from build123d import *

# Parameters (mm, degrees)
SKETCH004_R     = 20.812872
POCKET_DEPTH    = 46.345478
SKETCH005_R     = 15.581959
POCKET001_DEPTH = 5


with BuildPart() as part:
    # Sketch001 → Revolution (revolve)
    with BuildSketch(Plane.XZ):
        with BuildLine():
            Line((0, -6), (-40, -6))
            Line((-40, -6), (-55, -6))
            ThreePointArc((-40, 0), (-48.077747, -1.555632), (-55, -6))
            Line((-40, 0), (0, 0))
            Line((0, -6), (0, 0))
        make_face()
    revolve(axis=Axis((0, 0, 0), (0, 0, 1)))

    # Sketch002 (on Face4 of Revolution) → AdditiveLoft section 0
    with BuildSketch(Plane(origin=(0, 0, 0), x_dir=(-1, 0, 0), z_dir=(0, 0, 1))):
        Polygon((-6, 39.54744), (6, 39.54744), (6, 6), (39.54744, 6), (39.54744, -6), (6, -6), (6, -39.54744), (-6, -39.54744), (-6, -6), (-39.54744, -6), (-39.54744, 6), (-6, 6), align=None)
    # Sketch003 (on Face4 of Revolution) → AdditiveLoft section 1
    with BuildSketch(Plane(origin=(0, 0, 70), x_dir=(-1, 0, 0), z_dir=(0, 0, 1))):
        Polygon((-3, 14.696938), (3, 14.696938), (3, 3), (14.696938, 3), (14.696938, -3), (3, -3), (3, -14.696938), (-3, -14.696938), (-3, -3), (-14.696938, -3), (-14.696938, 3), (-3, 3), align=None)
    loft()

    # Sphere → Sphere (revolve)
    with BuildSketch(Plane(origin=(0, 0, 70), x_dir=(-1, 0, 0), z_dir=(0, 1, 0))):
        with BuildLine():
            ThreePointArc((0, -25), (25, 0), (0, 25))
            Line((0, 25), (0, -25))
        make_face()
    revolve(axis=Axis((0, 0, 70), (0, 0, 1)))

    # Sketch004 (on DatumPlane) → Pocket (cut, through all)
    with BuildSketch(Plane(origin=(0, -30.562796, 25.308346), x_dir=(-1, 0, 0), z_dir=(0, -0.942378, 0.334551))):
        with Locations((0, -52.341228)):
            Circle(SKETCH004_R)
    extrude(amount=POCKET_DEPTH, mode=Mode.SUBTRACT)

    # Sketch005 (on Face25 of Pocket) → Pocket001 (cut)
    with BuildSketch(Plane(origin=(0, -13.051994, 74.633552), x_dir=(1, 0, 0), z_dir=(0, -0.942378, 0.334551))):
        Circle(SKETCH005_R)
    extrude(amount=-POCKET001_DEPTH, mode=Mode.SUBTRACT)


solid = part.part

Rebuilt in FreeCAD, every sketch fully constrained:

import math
import FreeCAD as App
import Part
import Sketcher

V = App.Vector
Q = App.Units.Quantity


def add_polygon(sketch, points):
    """Adds a closed chain of lines whose ends are joined by coincident constraints."""
    first, n = sketch.GeometryCount, len(points)
    for a, b in zip(points, points[1:] + points[:1]):
        sketch.addGeometry(Part.LineSegment(App.Vector(*a, 0), App.Vector(*b, 0)), False)
    for i in range(n):
        sketch.addConstraint(Sketcher.Constraint("Coincident", first + i, 2, first + (i + 1) % n, 1))

doc = App.newDocument("Part")
params = doc.addObject("Spreadsheet::Sheet", "Params")
for row, (alias, value) in enumerate([
    ("sketch1_width", "55 mm"),
    ("sketch1_width2", "40 mm"),
    ("sketch1_height", "6 mm"),
    ("revolution_angle", "360 deg"),
    ("sketch2_width", "12 mm"),
    ("sketch3_width", "6 mm"),
    ("sketch4_radius", "25 mm"),
    ("revolution2_angle", "360 deg"),
    ("pocket2_length", "5 mm"),
], start=1):
    params.set(f"A{row}", alias)
    params.set(f"B{row}", "=" + value)
    params.setAlias(f"B{row}", alias)

body = doc.addObject("PartDesign::Body", "Body")

sketch1 = doc.addObject("Sketcher::SketchObject", "Sketch")
body.addObject(sketch1)
sketch1.AttachmentSupport = (doc.XZ_Plane, [""])
sketch1.MapMode = "FlatFace"
sketch1.addGeometry([
    Part.LineSegment(V(-55, -6, 0), V(0, -6, 0)),
    Part.LineSegment(V(0, -6, 0), V(0, 0, 0)),
    Part.LineSegment(V(0, 0, 0), V(-40, 0, 0)),
    Part.ArcOfCircle(Part.Circle(V(-40, -22, 0), V(0, 0, 1), 22), math.radians(90), math.radians(134)),
], False)
sketch1.addConstraint([
    Sketcher.Constraint("Coincident", 0, 2, 1, 1),
    Sketcher.Constraint("Coincident", 1, 2, 2, 1),
    Sketcher.Constraint("Tangent", 2, 2, 3, 1),
    Sketcher.Constraint("Coincident", 3, 2, 0, 1),
    Sketcher.Constraint("Horizontal", 0),
    Sketcher.Constraint("Vertical", 1),
    Sketcher.Constraint("Horizontal", 2),
    Sketcher.Constraint("Coincident", 1, 2, -1, 1),
    Sketcher.Constraint("DistanceX", 0, 1, 0, 2, Q("55 mm")),
    Sketcher.Constraint("DistanceX", 2, 2, 2, 1, Q("40 mm")),
    Sketcher.Constraint("DistanceY", 1, 1, 1, 2, Q("6 mm")),
])
sketch1.setExpression("Constraints[8]", "Params.sketch1_width")
sketch1.setExpression("Constraints[9]", "Params.sketch1_width2")
sketch1.setExpression("Constraints[10]", "Params.sketch1_height")
revolution = doc.addObject("PartDesign::Revolution", "Revolution")
body.addObject(revolution)
revolution.Profile = sketch1
revolution.ReferenceAxis = (sketch1, ["V_Axis"])
revolution.setExpression("Angle", "Params.revolution_angle")

sketch2 = doc.addObject("Sketcher::SketchObject", "Sketch001")
body.addObject(sketch2)
sketch2.AttachmentSupport = (doc.XY_Plane, [""])
sketch2.MapMode = "FlatFace"
add_polygon(sketch2, [(-6, -40), (6, -40), (6, -6), (40, -6), (40, 6), (6, 6), (6, 40), (-6, 40), (-6, 6), (-40, 6), (-40, -6), (-6, -6)])
sketch2.addConstraint([
    Sketcher.Constraint("Horizontal", 0),
    Sketcher.Constraint("Vertical", 1),
    Sketcher.Constraint("Horizontal", 2),
    Sketcher.Constraint("Vertical", 3),
    Sketcher.Constraint("Horizontal", 4),
    Sketcher.Constraint("Vertical", 5),
    Sketcher.Constraint("Horizontal", 6),
    Sketcher.Constraint("Vertical", 7),
    Sketcher.Constraint("Horizontal", 8),
    Sketcher.Constraint("Vertical", 9),
    Sketcher.Constraint("Horizontal", 10),
    Sketcher.Constraint("Vertical", 11),
    Sketcher.Constraint("Symmetric", 0, 2, 6, 2, -1, 1),
    Sketcher.Constraint("Symmetric", 2, 2, 8, 2, -1, 1),
    Sketcher.Constraint("Symmetric", 4, 2, 10, 2, -1, 1),
    Sketcher.Constraint("Symmetric", 4, 2, 7, 2, -2),
    Sketcher.Constraint("Equal", 10, 1),
    Sketcher.Constraint("Equal", 6, 3),
    Sketcher.Constraint("DistanceX", 0, 1, 0, 2, Q("12 mm")),
    Sketcher.Constraint("DistanceX", 2, 1, 2, 2, Q("33.54744 mm")),
])
sketch2.setExpression("Constraints[30]", "Params.sketch2_width")

sketch3 = doc.addObject("Sketcher::SketchObject", "Sketch002")
body.addObject(sketch3)
sketch3.AttachmentSupport = (doc.XY_Plane, [""])
sketch3.MapMode = "FlatFace"
sketch3.AttachmentOffset = App.Placement(V(0, 0, 70), App.Rotation())
add_polygon(sketch3, [(-3, -15), (3, -15), (3, -3), (15, -3), (15, 3), (3, 3), (3, 15), (-3, 15), (-3, 3), (-15, 3), (-15, -3), (-3, -3)])
sketch3.addConstraint([
    Sketcher.Constraint("Horizontal", 0),
    Sketcher.Constraint("Vertical", 1),
    Sketcher.Constraint("Horizontal", 2),
    Sketcher.Constraint("Vertical", 3),
    Sketcher.Constraint("Horizontal", 4),
    Sketcher.Constraint("Vertical", 5),
    Sketcher.Constraint("Horizontal", 6),
    Sketcher.Constraint("Vertical", 7),
    Sketcher.Constraint("Horizontal", 8),
    Sketcher.Constraint("Vertical", 9),
    Sketcher.Constraint("Horizontal", 10),
    Sketcher.Constraint("Vertical", 11),
    Sketcher.Constraint("Symmetric", 0, 2, 6, 2, -1, 1),
    Sketcher.Constraint("Symmetric", 2, 2, 8, 2, -1, 1),
    Sketcher.Constraint("Symmetric", 4, 2, 10, 2, -1, 1),
    Sketcher.Constraint("Symmetric", 4, 2, 7, 2, -2),
    Sketcher.Constraint("Equal", 10, 1),
    Sketcher.Constraint("Equal", 6, 3),
    Sketcher.Constraint("DistanceX", 0, 1, 0, 2, Q("6 mm")),
    Sketcher.Constraint("DistanceX", 2, 1, 2, 2, Q("11.696938 mm")),
])
sketch3.setExpression("Constraints[30]", "Params.sketch3_width")

additiveloft = doc.addObject("PartDesign::AdditiveLoft", "AdditiveLoft")
body.addObject(additiveloft)
additiveloft.Profile = sketch2
additiveloft.Sections = [sketch3]

sketch4 = doc.addObject("Sketcher::SketchObject", "Sketch003")
body.addObject(sketch4)
sketch4.AttachmentSupport = (doc.XZ_Plane, [""])
sketch4.MapMode = "FlatFace"
sketch4.addGeometry([
    Part.ArcOfCircle(Part.Circle(V(0, 70, 0), V(0, 0, 1), 25), math.radians(90), math.radians(270)),
    Part.LineSegment(V(0, 95, 0), V(0, 45, 0)),
], False)
sketch4.addConstraint([
    Sketcher.Constraint("Coincident", 0, 1, 1, 1),
    Sketcher.Constraint("Coincident", 1, 2, 0, 2),
    Sketcher.Constraint("Vertical", 1),
    Sketcher.Constraint("PointOnObject", 0, 3, -2),
    Sketcher.Constraint("PointOnObject", 0, 1, -2),
    Sketcher.Constraint("Radius", 0, Q("25 mm")),
    Sketcher.Constraint("DistanceY", -1, 1, 0, 3, Q("70 mm")),
])
sketch4.setExpression("Constraints[5]", "Params.sketch4_radius")
revolution2 = doc.addObject("PartDesign::Revolution", "Revolution001")
body.addObject(revolution2)
revolution2.Profile = sketch4
revolution2.ReferenceAxis = (sketch4, ["V_Axis"])
revolution2.setExpression("Angle", "Params.revolution2_angle")

sketch5 = doc.addObject("Sketcher::SketchObject", "Sketch004")
body.addObject(sketch5)
sketch5.Placement = App.Placement(V(0, -30.562796, 25.308346), App.Rotation(V(-1, 0, 0), V(0, -0.334550889, -0.942377686), V(0, -0.942377686, 0.334550889), "ZXY"))
sketch5.addGeometry(Part.Circle(V(0, -52, 0), V(0, 0, 1), 21), False)
sketch5.addConstraint([
    Sketcher.Constraint("PointOnObject", 0, 3, -2),
    Sketcher.Constraint("Diameter", 0, Q("41.625744 mm")),
    Sketcher.Constraint("DistanceY", 0, 3, -1, 1, Q("52.341228 mm")),
])
pocket1 = doc.addObject("PartDesign::Pocket", "Pocket")
body.addObject(pocket1)
pocket1.Profile = sketch5
pocket1.Type = "ThroughAll"
pocket1.Reversed = True

sketch6 = doc.addObject("Sketcher::SketchObject", "Sketch005")
body.addObject(sketch6)
sketch6.Placement = App.Placement(V(0, -13.051994, 74.633552), App.Rotation(V(1, 0, 0), V(0, 0.334550889, 0.942377686), V(0, -0.942377686, 0.334550889), "ZXY"))
sketch6.addGeometry(Part.Circle(V(0, 0, 0), V(0, 0, 1), 16), False)
sketch6.addConstraint([
    Sketcher.Constraint("Coincident", 0, 3, -1, 1),
    Sketcher.Constraint("Diameter", 0, Q("31.163918 mm")),
])
pocket2 = doc.addObject("PartDesign::Pocket", "Pocket001")
body.addObject(pocket2)
pocket2.Profile = sketch6
pocket2.setExpression("Length", "Params.pocket2_length")

doc.recompute()
